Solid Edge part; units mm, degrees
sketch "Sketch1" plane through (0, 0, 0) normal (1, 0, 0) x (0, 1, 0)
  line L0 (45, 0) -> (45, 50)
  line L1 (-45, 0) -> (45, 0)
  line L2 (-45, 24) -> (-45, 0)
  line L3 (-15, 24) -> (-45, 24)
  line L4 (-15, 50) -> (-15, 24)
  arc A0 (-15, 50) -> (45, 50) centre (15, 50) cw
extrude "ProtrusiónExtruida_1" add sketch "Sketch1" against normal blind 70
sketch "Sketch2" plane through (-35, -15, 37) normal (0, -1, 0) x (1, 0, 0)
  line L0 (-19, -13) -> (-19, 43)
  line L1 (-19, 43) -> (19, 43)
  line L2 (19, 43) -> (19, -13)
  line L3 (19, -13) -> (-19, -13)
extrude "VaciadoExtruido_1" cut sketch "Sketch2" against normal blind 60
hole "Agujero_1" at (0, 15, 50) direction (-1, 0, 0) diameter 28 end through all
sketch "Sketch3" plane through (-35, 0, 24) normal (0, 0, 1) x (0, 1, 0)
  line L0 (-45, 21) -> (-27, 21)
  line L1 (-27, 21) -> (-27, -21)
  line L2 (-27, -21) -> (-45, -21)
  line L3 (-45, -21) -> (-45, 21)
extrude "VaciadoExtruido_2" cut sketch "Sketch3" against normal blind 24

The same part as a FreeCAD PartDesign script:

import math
import FreeCAD as App
import Part
import Sketcher

V = App.Vector


def add_polygon(sketch, points):
    """Adds a closed chain of lines whose ends are joined by coincident constraints."""
    first, n = sketch.GeometryCount, len(points)
    for a, b in zip(points, points[1:] + points[:1]):
        sketch.addGeometry(Part.LineSegment(App.Vector(*a, 0), App.Vector(*b, 0)), False)
    for i in range(n):
        sketch.addConstraint(Sketcher.Constraint("Coincident", first + i, 2, first + (i + 1) % n, 1))

doc = App.newDocument("Part")
body = doc.addObject("PartDesign::Body", "Body")

# Sketch on YZ plane
sketch1 = body.newObject("Sketcher::SketchObject", "Sketch")
sketch1.AttachmentSupport = (doc.getObject("YZ_Plane"), [""])
sketch1.MapMode = "FlatFace"
sketch1.addGeometry([
    Part.LineSegment(V(-45, 0, 0), V(45, 0, 0)),  # 0
    Part.LineSegment(V(45, 0, 0), V(45, 50, 0)),  # 1
    Part.ArcOfCircle(Part.Circle(V(15, 50, 0), V(0, 0, 1), 30), math.radians(0), math.radians(180)),  # 2
    Part.LineSegment(V(-15, 50, 0), V(-15, 24, 0)),  # 3
    Part.LineSegment(V(-15, 24, 0), V(-45, 24, 0)),  # 4
    Part.LineSegment(V(-45, 24, 0), V(-45, 0, 0)),  # 5
], False)
sketch1.addConstraint([
    Sketcher.Constraint("Coincident", 0, 2, 1, 1),
    Sketcher.Constraint("Tangent", 1, 2, 2, 1),
    Sketcher.Constraint("Tangent", 2, 2, 3, 1),
    Sketcher.Constraint("Coincident", 3, 2, 4, 1),
    Sketcher.Constraint("Coincident", 4, 2, 5, 1),
    Sketcher.Constraint("Coincident", 5, 2, 0, 1),
    Sketcher.Constraint("Horizontal", 0),
    Sketcher.Constraint("Vertical", 1),
    Sketcher.Constraint("Vertical", 3),
    Sketcher.Constraint("Horizontal", 4),
    Sketcher.Constraint("Vertical", 5),
    Sketcher.Constraint("Symmetric", 0, 2, 5, 2, -1, 1),
    Sketcher.Constraint("Radius", 2, 30.0),
    Sketcher.Constraint("DistanceX", 0, 1, 0, 2, 90.0),
    Sketcher.Constraint("DistanceY", 1, 1, 1, 2, 50.0),
    Sketcher.Constraint("DistanceY", 3, 2, 3, 1, 26.0),
])
pad1 = body.newObject("PartDesign::Pad", "Pad")
pad1.Profile = sketch1
pad1.Length = 70
pad1.Reversed = True

# Sketch on XZ plane
sketch2 = body.newObject("Sketcher::SketchObject", "Sketch001")
sketch2.AttachmentSupport = (doc.getObject("XZ_Plane"), [""])
sketch2.MapMode = "FlatFace"
sketch2.AttachmentOffset = App.Placement(V(0, 0, 15), App.Rotation())
add_polygon(sketch2, [(-54, 80), (-54, 24), (-16, 24), (-16, 80)])  # lines 0-3
sketch2.addConstraint([
    Sketcher.Constraint("Vertical", 0),
    Sketcher.Constraint("Horizontal", 1),
    Sketcher.Constraint("Vertical", 2),
    Sketcher.Constraint("Horizontal", 3),
    Sketcher.Constraint("DistanceX", 1, 1, 1, 2, 38.0),
    Sketcher.Constraint("DistanceY", 0, 2, 0, 1, 56.0),
    Sketcher.Constraint("DistanceX", 0, 2, -1, 1, 54.0),
    Sketcher.Constraint("DistanceY", -1, 1, 0, 2, 24.0),
])
pocket1 = body.newObject("PartDesign::Pocket", "Pocket")
pocket1.Profile = sketch2
pocket1.Length = 60

# Sketch on YZ plane
sketch3 = body.newObject("Sketcher::SketchObject", "Sketch002")
sketch3.AttachmentSupport = (doc.getObject("YZ_Plane"), [""])
sketch3.MapMode = "FlatFace"
sketch3.addGeometry(Part.Circle(V(15, 50, 0), V(0, 0, 1), 14), False)
sketch3.addConstraint([
    Sketcher.Constraint("Diameter", 0, 28.0),
    Sketcher.Constraint("DistanceX", -1, 1, 0, 3, 15.0),
    Sketcher.Constraint("DistanceY", -1, 1, 0, 3, 50.0),
])
doc.recompute()
hole = body.newObject("PartDesign::Hole", "Hole")
hole.Profile = sketch3
hole.ThreadType = "None"
hole.Diameter = 28
hole.DepthType = "ThroughAll"

# Sketch on XY plane
sketch4 = body.newObject("Sketcher::SketchObject", "Sketch003")
sketch4.AttachmentSupport = (doc.getObject("XY_Plane"), [""])
sketch4.MapMode = "FlatFace"
sketch4.AttachmentOffset = App.Placement(V(0, 0, 24), App.Rotation())
add_polygon(sketch4, [(-56, -27), (-56, -45), (-14, -45), (-14, -27)])  # lines 0-3
sketch4.addConstraint([
    Sketcher.Constraint("Vertical", 0),
    Sketcher.Constraint("Horizontal", 1),
    Sketcher.Constraint("Vertical", 2),
    Sketcher.Constraint("Horizontal", 3),
    Sketcher.Constraint("DistanceX", 1, 1, 1, 2, 42.0),
    Sketcher.Constraint("DistanceY", 0, 2, 0, 1, 18.0),
    Sketcher.Constraint("DistanceX", 0, 2, -1, 1, 56.0),
    Sketcher.Constraint("DistanceY", 0, 2, -1, 1, 45.0),
])
pocket2 = body.newObject("PartDesign::Pocket", "Pocket001")
pocket2.Profile = sketch4
pocket2.Length = 24

doc.recompute()
